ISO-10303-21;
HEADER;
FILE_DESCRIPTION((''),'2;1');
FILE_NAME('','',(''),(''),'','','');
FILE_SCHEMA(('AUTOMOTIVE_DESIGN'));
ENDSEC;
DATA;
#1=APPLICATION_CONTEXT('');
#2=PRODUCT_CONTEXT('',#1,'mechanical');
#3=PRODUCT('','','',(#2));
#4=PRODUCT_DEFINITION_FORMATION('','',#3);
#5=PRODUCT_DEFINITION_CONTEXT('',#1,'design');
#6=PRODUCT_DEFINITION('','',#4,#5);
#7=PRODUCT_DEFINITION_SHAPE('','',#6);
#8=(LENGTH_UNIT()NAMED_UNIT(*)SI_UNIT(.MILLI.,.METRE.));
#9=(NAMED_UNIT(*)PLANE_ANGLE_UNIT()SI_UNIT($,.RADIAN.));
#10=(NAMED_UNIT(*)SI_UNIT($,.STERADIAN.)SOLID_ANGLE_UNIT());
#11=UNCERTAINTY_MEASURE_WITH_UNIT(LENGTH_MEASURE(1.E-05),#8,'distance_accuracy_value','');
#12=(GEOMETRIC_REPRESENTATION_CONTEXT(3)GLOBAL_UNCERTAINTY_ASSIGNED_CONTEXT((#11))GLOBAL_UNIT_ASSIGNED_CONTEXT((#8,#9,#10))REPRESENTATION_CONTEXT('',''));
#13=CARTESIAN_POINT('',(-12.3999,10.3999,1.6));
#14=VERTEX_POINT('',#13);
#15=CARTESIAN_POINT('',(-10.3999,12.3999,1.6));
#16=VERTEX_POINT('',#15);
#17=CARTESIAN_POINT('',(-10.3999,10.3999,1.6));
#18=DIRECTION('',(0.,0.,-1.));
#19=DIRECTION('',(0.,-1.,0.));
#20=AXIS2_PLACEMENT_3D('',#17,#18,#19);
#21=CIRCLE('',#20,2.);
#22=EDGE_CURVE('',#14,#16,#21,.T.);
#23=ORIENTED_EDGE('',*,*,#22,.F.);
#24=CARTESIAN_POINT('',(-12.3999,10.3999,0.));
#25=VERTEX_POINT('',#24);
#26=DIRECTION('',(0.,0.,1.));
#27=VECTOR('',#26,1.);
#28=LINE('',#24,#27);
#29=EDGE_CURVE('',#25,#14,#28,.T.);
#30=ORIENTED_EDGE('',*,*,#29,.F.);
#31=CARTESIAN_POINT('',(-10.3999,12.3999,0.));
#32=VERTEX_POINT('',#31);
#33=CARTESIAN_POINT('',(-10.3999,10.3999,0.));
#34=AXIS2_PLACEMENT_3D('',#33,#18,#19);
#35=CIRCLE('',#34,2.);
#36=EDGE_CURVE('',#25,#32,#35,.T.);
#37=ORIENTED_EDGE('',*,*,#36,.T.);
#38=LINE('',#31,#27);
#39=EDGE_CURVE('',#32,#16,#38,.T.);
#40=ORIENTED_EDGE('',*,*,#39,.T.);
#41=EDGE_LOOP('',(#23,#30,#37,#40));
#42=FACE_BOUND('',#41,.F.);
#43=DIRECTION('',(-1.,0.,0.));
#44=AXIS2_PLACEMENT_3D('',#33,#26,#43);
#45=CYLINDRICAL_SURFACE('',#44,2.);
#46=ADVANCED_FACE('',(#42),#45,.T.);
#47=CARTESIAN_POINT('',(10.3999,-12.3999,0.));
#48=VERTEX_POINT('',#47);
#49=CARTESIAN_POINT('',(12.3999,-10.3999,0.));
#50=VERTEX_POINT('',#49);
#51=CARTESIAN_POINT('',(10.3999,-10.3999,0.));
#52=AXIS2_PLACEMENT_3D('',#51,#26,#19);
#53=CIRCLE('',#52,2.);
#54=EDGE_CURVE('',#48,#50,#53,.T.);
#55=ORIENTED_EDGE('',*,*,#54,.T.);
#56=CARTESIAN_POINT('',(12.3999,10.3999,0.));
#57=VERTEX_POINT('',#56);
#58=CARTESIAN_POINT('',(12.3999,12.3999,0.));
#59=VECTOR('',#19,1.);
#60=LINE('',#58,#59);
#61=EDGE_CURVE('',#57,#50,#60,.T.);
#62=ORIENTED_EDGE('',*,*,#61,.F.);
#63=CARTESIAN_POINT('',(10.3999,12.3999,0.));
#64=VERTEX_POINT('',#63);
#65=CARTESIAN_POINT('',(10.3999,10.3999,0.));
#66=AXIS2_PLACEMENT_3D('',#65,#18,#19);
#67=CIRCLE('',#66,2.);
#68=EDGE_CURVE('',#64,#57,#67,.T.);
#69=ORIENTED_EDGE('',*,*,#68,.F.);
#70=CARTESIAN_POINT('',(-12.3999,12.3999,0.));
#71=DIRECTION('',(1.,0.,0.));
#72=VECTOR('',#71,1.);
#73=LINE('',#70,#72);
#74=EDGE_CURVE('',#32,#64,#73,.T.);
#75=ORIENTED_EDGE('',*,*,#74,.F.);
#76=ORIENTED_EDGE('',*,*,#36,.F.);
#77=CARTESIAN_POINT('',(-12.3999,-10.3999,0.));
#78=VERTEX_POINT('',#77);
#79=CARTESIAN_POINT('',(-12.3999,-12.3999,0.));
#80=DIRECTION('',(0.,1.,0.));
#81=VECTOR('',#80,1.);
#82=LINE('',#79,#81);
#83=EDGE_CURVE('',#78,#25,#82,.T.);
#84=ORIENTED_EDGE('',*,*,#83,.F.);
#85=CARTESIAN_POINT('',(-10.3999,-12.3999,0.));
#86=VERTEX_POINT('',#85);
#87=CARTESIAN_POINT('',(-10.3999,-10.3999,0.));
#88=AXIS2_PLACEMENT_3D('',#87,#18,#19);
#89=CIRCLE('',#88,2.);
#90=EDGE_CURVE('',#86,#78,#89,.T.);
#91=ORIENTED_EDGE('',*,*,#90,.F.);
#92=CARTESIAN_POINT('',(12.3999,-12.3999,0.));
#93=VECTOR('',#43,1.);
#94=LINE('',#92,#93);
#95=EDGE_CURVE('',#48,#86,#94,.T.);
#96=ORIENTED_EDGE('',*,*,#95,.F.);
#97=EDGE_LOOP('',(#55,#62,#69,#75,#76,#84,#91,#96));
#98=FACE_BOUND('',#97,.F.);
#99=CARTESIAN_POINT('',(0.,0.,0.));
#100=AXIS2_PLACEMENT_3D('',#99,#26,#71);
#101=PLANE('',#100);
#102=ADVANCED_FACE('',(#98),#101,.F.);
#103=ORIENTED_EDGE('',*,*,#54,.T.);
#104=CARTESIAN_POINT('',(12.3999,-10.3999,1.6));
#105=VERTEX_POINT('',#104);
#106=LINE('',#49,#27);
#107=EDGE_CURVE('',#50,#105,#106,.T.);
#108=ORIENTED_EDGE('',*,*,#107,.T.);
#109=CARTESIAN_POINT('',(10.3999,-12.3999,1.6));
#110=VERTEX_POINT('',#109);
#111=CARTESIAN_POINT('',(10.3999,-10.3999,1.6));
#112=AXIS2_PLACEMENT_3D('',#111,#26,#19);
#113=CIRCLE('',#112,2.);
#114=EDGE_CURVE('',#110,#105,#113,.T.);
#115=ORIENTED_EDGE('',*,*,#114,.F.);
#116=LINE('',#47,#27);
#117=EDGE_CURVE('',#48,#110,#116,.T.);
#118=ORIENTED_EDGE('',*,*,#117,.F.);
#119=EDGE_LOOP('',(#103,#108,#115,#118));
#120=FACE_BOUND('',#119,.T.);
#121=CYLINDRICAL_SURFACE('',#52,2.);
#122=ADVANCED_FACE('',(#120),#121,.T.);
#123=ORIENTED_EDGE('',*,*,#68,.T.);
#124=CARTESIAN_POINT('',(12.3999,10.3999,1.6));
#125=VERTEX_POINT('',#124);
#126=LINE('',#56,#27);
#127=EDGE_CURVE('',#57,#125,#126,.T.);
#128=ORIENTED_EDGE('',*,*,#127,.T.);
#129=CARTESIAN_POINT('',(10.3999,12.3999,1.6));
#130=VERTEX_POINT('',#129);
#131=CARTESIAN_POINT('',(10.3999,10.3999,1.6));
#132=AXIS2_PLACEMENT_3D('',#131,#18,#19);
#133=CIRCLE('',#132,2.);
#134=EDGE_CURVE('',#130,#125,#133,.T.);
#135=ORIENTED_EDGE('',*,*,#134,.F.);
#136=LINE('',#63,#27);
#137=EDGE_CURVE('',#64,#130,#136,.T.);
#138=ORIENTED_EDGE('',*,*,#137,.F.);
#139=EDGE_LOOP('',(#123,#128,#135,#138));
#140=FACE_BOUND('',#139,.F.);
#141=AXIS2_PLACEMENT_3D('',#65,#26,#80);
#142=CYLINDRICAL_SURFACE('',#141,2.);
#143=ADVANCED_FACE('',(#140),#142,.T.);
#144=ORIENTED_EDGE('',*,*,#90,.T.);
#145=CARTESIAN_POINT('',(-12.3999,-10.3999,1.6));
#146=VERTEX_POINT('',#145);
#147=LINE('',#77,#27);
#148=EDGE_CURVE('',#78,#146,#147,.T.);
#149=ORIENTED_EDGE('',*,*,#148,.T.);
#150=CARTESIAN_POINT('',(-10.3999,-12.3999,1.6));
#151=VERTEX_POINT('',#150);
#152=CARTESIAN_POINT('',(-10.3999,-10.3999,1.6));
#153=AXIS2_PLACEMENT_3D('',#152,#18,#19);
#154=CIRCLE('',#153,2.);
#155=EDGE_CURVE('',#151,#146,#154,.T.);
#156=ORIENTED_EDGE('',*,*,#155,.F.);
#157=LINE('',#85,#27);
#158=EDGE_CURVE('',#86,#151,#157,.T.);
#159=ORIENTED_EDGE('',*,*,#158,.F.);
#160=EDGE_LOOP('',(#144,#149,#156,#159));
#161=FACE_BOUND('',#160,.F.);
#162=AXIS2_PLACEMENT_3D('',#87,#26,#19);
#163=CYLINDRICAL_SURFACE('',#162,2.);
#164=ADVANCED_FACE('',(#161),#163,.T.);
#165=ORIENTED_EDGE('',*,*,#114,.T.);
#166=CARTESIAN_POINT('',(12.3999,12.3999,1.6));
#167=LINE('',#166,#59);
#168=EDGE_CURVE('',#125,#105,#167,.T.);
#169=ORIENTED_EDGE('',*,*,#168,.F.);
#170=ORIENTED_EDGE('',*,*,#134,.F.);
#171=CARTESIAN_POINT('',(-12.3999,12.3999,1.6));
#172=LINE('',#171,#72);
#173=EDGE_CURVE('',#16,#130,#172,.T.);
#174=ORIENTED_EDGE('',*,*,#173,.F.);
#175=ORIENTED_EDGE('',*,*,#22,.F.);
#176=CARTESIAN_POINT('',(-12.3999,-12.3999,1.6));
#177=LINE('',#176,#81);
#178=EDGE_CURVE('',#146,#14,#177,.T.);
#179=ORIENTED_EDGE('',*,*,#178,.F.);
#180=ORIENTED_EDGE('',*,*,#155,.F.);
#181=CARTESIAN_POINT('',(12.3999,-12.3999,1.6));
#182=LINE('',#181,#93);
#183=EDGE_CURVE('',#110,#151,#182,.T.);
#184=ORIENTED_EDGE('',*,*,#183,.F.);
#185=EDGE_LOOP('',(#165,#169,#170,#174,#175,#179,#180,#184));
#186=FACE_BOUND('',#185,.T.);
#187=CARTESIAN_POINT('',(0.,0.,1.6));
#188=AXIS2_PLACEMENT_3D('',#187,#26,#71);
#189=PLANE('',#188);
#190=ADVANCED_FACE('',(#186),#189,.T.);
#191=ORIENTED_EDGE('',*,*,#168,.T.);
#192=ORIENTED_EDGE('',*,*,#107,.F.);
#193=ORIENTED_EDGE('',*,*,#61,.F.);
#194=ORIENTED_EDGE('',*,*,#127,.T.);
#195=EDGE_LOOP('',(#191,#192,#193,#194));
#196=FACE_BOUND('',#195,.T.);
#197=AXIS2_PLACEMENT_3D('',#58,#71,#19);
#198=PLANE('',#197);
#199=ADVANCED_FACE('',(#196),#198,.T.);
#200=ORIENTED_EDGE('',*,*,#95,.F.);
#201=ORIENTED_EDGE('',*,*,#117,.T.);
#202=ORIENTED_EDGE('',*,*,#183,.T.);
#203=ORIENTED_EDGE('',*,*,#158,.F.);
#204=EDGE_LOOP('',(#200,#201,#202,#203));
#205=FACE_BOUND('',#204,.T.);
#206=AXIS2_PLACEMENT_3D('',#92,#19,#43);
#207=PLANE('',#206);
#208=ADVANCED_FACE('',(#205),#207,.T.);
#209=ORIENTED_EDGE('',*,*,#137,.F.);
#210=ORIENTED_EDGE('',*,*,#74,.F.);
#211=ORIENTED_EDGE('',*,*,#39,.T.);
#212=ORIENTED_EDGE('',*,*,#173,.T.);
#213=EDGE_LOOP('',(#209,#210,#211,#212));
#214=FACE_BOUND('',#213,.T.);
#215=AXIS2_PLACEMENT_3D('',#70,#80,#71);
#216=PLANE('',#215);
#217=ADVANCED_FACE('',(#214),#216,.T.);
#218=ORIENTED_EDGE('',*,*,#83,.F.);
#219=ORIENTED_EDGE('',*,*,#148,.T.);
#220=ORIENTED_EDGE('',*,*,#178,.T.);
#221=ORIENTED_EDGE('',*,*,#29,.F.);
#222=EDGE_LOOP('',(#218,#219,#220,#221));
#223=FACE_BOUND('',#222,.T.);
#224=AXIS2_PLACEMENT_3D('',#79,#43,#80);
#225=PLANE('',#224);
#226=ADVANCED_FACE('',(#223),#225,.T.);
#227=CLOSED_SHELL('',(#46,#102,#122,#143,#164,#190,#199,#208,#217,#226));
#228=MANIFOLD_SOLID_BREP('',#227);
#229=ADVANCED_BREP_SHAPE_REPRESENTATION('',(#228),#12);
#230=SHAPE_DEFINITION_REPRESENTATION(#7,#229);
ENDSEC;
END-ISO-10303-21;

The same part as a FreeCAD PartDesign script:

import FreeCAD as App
import Part
import Sketcher


def edges_at(feature, points):
    """Names of the edges that pass closest to the given points."""
    edges = feature.Shape.Edges
    near = lambda p: min(range(len(edges)), key=lambda i: edges[i].distToShape(Part.Vertex(*p))[0])
    return sorted({f"Edge{near(p) + 1}" for p in points})

doc = App.newDocument("Part")
body = doc.addObject("PartDesign::Body", "Body")

# Sketch on XY plane
sketch1 = doc.addObject("Sketcher::SketchObject", "Sketch")
body.addObject(sketch1)
sketch1.AttachmentSupport = (doc.XY_Plane, [""])
sketch1.MapMode = "FlatFace"
sketch1.addGeometry([
    Part.LineSegment(App.Vector(-12, -12, 0), App.Vector(12, -12, 0)),
    Part.LineSegment(App.Vector(12, -12, 0), App.Vector(12, 12, 0)),
    Part.LineSegment(App.Vector(12, 12, 0), App.Vector(-12, 12, 0)),
    Part.LineSegment(App.Vector(-12, 12, 0), App.Vector(-12, -12, 0)),
], False)
sketch1.addConstraint([
    Sketcher.Constraint("Coincident", 0, 2, 1, 1),
    Sketcher.Constraint("Coincident", 1, 2, 2, 1),
    Sketcher.Constraint("Coincident", 2, 2, 3, 1),
    Sketcher.Constraint("Coincident", 3, 2, 0, 1),
    Sketcher.Constraint("Horizontal", 0),
    Sketcher.Constraint("Vertical", 1),
    Sketcher.Constraint("Horizontal", 2),
    Sketcher.Constraint("Vertical", 3),
    Sketcher.Constraint("Symmetric", 0, 2, 2, 2, -1, 1),
    Sketcher.Constraint("Equal", 2, 1),
    Sketcher.Constraint("DistanceX", -1, 1, 0, 2, 12.4),
])
pad1 = doc.addObject("PartDesign::Pad", "Pad")
body.addObject(pad1)
pad1.Profile = sketch1
pad1.Length = 1.6
doc.recompute()

fillet = doc.addObject("PartDesign::Fillet", "Fillet")
body.addObject(fillet)
fillet.Base = (pad1, edges_at(pad1, [
    (12.4, 12.4, 0.8),
    (-12.4, 12.4, 0.8),
    (12.4, -12.4, 0.8),
    (-12.4, -12.4, 0.8),
]))
fillet.Radius = 2

doc.recompute()
